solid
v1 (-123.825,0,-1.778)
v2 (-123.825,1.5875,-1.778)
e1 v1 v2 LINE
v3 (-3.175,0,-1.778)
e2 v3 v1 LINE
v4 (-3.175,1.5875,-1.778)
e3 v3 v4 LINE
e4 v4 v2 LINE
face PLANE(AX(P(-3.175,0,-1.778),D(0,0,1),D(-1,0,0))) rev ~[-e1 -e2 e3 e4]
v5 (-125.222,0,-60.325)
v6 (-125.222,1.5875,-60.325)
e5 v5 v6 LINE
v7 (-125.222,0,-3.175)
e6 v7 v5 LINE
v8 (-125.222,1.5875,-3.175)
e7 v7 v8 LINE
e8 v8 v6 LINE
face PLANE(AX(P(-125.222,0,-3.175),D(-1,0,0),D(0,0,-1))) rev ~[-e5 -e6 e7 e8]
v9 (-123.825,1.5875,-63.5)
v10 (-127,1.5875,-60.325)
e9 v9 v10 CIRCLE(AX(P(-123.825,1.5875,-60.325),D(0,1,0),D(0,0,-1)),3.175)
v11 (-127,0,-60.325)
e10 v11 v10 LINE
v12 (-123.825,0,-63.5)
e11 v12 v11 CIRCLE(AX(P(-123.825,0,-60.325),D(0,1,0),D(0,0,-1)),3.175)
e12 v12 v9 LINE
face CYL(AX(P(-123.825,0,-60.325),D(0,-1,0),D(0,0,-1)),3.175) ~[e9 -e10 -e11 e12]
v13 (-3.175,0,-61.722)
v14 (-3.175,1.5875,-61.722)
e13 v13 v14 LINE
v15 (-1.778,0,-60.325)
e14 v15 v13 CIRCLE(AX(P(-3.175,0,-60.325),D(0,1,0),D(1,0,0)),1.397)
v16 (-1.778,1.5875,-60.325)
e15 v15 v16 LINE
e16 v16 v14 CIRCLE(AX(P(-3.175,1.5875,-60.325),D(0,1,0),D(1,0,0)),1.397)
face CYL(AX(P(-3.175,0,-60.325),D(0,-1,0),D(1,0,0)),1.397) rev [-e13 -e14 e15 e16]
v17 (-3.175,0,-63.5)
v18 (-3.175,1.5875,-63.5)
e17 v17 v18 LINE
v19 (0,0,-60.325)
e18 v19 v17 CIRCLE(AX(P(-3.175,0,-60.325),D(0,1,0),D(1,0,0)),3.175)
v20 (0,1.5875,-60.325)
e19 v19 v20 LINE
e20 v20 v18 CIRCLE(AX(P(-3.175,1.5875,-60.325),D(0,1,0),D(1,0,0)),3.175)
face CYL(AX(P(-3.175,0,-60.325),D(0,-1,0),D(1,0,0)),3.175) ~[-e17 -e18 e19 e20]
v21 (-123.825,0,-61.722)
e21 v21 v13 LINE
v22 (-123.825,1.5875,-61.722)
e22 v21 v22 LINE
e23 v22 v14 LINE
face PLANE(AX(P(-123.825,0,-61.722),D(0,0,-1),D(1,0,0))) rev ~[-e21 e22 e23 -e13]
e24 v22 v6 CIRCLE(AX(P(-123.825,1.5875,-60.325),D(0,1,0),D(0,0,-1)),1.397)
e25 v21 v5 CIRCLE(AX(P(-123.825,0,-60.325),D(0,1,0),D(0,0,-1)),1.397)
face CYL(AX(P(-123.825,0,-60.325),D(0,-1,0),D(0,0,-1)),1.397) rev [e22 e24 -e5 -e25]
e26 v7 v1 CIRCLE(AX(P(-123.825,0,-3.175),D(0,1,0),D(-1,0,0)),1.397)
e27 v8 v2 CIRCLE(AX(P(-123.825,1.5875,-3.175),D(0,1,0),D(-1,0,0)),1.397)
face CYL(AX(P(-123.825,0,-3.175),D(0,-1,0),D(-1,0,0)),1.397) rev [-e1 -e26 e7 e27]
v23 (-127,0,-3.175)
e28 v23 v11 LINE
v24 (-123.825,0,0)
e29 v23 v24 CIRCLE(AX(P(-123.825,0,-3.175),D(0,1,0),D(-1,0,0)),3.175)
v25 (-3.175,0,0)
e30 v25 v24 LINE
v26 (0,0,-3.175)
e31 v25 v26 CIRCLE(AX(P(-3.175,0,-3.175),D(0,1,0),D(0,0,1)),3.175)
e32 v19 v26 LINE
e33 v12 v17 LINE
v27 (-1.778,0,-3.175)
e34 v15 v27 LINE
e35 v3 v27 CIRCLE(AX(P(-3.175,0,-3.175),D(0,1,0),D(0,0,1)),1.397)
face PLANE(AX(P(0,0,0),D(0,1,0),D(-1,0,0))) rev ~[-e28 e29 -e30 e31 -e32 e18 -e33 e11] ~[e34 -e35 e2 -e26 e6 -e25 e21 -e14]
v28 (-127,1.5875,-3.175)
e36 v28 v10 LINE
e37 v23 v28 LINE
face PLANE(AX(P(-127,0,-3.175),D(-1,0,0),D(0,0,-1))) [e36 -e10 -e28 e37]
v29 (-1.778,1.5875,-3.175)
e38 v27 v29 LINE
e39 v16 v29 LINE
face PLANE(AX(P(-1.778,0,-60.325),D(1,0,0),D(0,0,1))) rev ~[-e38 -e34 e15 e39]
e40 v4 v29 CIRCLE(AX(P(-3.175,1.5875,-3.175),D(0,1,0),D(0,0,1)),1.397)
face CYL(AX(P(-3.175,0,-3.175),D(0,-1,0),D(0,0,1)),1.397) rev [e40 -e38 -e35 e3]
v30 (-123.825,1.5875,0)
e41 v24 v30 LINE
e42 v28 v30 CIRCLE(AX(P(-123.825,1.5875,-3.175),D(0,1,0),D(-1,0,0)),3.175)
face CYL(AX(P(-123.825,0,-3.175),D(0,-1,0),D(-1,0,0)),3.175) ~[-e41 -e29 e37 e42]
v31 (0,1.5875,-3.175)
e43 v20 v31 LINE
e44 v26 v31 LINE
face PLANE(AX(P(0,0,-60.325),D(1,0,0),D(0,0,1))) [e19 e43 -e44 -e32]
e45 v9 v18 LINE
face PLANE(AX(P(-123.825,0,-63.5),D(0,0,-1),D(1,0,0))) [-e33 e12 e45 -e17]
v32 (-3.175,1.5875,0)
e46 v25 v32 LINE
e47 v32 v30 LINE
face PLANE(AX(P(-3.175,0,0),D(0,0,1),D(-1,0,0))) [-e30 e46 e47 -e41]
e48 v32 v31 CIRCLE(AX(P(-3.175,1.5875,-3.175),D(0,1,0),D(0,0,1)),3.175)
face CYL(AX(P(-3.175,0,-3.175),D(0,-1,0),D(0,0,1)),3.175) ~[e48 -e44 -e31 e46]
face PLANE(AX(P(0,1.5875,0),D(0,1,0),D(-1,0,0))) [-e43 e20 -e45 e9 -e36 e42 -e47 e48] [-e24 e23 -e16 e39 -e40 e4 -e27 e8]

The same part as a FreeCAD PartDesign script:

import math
import FreeCAD as App
import Part
import Sketcher

V = App.Vector
Q = App.Units.Quantity

doc = App.newDocument("Part")
params = doc.addObject("Spreadsheet::Sheet", "Params")
for row, (alias, value) in enumerate([
    ("sketch1_radius", "0.125 in"),
    ("sketch1_radius2", "0.055 in"),
    ("pad1_length", "0.0625 in"),
], start=1):
    params.set(f"A{row}", alias)
    params.set(f"B{row}", "=" + value)
    params.setAlias(f"B{row}", alias)

body = doc.addObject("PartDesign::Body", "Body")

# Sketch on XZ plane
sketch1 = doc.addObject("Sketcher::SketchObject", "Sketch")
body.addObject(sketch1)
sketch1.AttachmentSupport = (doc.XZ_Plane, [""])
sketch1.MapMode = "FlatFace"
sketch1.addGeometry(Part.LineSegment(V(-123.8, 0, 0), V(-3.2, 0, 0)), False)
sketch1.addGeometry(Part.ArcOfCircle(Part.Circle(V(-3.2, -3.2, 0), V(0, 0, 1), 3.2), math.radians(0), math.radians(90)), False)
sketch1.addGeometry(Part.LineSegment(V(0, -3.2, 0), V(0, -60.3, 0)), False)
sketch1.addGeometry(Part.ArcOfCircle(Part.Circle(V(-3.2, -60.3, 0), V(0, 0, 1), 3.2), math.radians(-90), math.radians(0)), False)
sketch1.addGeometry(Part.LineSegment(V(-3.2, -63.5, 0), V(-123.8, -63.5, 0)), False)
sketch1.addGeometry(Part.ArcOfCircle(Part.Circle(V(-123.8, -60.3, 0), V(0, 0, 1), 3.2), math.radians(180), math.radians(270)), False)
sketch1.addGeometry(Part.LineSegment(V(-127, -60.3, 0), V(-127, -3.2, 0)), False)
sketch1.addGeometry(Part.ArcOfCircle(Part.Circle(V(-123.8, -3.2, 0), V(0, 0, 1), 3.2), math.radians(90), math.radians(180)), False)
sketch1.addGeometry(Part.ArcOfCircle(Part.Circle(V(-3.2, -3.2, 0), V(0, 0, 1), 1.4), math.radians(0), math.radians(90)), False)
sketch1.addGeometry(Part.LineSegment(V(-3.2, -1.8, 0), V(-123.8, -1.8, 0)), False)
sketch1.addGeometry(Part.ArcOfCircle(Part.Circle(V(-123.8, -3.2, 0), V(0, 0, 1), 1.4), math.radians(90), math.radians(180)), False)
sketch1.addGeometry(Part.LineSegment(V(-125.2, -3.2, 0), V(-125.2, -60.3, 0)), False)
sketch1.addGeometry(Part.ArcOfCircle(Part.Circle(V(-123.8, -60.3, 0), V(0, 0, 1), 1.4), math.radians(180), math.radians(270)), False)
sketch1.addGeometry(Part.LineSegment(V(-123.8, -61.7, 0), V(-3.2, -61.7, 0)), False)
sketch1.addGeometry(Part.ArcOfCircle(Part.Circle(V(-3.2, -60.3, 0), V(0, 0, 1), 1.4), math.radians(-90), math.radians(0)), False)
sketch1.addGeometry(Part.LineSegment(V(-1.8, -60.3, 0), V(-1.8, -3.2, 0)), False)
sketch1.addConstraint(Sketcher.Constraint("Tangent", 0, 2, 1, 2))
sketch1.addConstraint(Sketcher.Constraint("Tangent", 1, 1, 2, 1))
sketch1.addConstraint(Sketcher.Constraint("Tangent", 2, 2, 3, 2))
sketch1.addConstraint(Sketcher.Constraint("Tangent", 3, 1, 4, 1))
sketch1.addConstraint(Sketcher.Constraint("Tangent", 4, 2, 5, 2))
sketch1.addConstraint(Sketcher.Constraint("Tangent", 5, 1, 6, 1))
sketch1.addConstraint(Sketcher.Constraint("Tangent", 6, 2, 7, 2))
sketch1.addConstraint(Sketcher.Constraint("Tangent", 7, 1, 0, 1))
sketch1.addConstraint(Sketcher.Constraint("Tangent", 8, 2, 9, 1))
sketch1.addConstraint(Sketcher.Constraint("Tangent", 9, 2, 10, 1))
sketch1.addConstraint(Sketcher.Constraint("Tangent", 10, 2, 11, 1))
sketch1.addConstraint(Sketcher.Constraint("Tangent", 11, 2, 12, 1))
sketch1.addConstraint(Sketcher.Constraint("Tangent", 12, 2, 13, 1))
sketch1.addConstraint(Sketcher.Constraint("Tangent", 13, 2, 14, 1))
sketch1.addConstraint(Sketcher.Constraint("Tangent", 14, 2, 15, 1))
sketch1.addConstraint(Sketcher.Constraint("Tangent", 15, 2, 8, 1))
sketch1.addConstraint(Sketcher.Constraint("Horizontal", 0))
sketch1.addConstraint(Sketcher.Constraint("Vertical", 2))
sketch1.addConstraint(Sketcher.Constraint("Horizontal", 4))
sketch1.addConstraint(Sketcher.Constraint("Vertical", 6))
sketch1.addConstraint(Sketcher.Constraint("Horizontal", 9))
sketch1.addConstraint(Sketcher.Constraint("Vertical", 11))
sketch1.addConstraint(Sketcher.Constraint("Horizontal", 13))
sketch1.addConstraint(Sketcher.Constraint("Vertical", 15))
sketch1.addConstraint(Sketcher.Constraint("Coincident", 8, 3, 1, 3))
sketch1.addConstraint(Sketcher.Constraint("Coincident", 10, 3, 7, 3))
sketch1.addConstraint(Sketcher.Constraint("Coincident", 12, 3, 5, 3))
sketch1.addConstraint(Sketcher.Constraint("Equal", 1, 3))
sketch1.addConstraint(Sketcher.Constraint("Equal", 3, 5))
sketch1.addConstraint(Sketcher.Constraint("Equal", 5, 7))
sketch1.addConstraint(Sketcher.Constraint("Equal", 12, 14))
sketch1.addConstraint(Sketcher.Constraint("PointOnObject", 0, 2, -1))
sketch1.addConstraint(Sketcher.Constraint("PointOnObject", 1, 1, -2))
sketch1.addConstraint(Sketcher.Constraint("DistanceX", 5, 1, -1, 1, Q("5 in")))
sketch1.addConstraint(Sketcher.Constraint("Radius", 1, Q("0.125 in")))
sketch1.addConstraint(Sketcher.Constraint("DistanceY", 3, 1, -1, 1, Q("2.5 in")))
sketch1.addConstraint(Sketcher.Constraint("Radius", 8, Q("0.055 in")))
sketch1.setExpression("Constraints[34]", "Params.sketch1_radius")
sketch1.setExpression("Constraints[36]", "Params.sketch1_radius2")
pad1 = doc.addObject("PartDesign::Pad", "Pad")
body.addObject(pad1)
pad1.Profile = sketch1
pad1.setExpression("Length", "Params.pad1_length")
pad1.Reversed = True

doc.recompute()
